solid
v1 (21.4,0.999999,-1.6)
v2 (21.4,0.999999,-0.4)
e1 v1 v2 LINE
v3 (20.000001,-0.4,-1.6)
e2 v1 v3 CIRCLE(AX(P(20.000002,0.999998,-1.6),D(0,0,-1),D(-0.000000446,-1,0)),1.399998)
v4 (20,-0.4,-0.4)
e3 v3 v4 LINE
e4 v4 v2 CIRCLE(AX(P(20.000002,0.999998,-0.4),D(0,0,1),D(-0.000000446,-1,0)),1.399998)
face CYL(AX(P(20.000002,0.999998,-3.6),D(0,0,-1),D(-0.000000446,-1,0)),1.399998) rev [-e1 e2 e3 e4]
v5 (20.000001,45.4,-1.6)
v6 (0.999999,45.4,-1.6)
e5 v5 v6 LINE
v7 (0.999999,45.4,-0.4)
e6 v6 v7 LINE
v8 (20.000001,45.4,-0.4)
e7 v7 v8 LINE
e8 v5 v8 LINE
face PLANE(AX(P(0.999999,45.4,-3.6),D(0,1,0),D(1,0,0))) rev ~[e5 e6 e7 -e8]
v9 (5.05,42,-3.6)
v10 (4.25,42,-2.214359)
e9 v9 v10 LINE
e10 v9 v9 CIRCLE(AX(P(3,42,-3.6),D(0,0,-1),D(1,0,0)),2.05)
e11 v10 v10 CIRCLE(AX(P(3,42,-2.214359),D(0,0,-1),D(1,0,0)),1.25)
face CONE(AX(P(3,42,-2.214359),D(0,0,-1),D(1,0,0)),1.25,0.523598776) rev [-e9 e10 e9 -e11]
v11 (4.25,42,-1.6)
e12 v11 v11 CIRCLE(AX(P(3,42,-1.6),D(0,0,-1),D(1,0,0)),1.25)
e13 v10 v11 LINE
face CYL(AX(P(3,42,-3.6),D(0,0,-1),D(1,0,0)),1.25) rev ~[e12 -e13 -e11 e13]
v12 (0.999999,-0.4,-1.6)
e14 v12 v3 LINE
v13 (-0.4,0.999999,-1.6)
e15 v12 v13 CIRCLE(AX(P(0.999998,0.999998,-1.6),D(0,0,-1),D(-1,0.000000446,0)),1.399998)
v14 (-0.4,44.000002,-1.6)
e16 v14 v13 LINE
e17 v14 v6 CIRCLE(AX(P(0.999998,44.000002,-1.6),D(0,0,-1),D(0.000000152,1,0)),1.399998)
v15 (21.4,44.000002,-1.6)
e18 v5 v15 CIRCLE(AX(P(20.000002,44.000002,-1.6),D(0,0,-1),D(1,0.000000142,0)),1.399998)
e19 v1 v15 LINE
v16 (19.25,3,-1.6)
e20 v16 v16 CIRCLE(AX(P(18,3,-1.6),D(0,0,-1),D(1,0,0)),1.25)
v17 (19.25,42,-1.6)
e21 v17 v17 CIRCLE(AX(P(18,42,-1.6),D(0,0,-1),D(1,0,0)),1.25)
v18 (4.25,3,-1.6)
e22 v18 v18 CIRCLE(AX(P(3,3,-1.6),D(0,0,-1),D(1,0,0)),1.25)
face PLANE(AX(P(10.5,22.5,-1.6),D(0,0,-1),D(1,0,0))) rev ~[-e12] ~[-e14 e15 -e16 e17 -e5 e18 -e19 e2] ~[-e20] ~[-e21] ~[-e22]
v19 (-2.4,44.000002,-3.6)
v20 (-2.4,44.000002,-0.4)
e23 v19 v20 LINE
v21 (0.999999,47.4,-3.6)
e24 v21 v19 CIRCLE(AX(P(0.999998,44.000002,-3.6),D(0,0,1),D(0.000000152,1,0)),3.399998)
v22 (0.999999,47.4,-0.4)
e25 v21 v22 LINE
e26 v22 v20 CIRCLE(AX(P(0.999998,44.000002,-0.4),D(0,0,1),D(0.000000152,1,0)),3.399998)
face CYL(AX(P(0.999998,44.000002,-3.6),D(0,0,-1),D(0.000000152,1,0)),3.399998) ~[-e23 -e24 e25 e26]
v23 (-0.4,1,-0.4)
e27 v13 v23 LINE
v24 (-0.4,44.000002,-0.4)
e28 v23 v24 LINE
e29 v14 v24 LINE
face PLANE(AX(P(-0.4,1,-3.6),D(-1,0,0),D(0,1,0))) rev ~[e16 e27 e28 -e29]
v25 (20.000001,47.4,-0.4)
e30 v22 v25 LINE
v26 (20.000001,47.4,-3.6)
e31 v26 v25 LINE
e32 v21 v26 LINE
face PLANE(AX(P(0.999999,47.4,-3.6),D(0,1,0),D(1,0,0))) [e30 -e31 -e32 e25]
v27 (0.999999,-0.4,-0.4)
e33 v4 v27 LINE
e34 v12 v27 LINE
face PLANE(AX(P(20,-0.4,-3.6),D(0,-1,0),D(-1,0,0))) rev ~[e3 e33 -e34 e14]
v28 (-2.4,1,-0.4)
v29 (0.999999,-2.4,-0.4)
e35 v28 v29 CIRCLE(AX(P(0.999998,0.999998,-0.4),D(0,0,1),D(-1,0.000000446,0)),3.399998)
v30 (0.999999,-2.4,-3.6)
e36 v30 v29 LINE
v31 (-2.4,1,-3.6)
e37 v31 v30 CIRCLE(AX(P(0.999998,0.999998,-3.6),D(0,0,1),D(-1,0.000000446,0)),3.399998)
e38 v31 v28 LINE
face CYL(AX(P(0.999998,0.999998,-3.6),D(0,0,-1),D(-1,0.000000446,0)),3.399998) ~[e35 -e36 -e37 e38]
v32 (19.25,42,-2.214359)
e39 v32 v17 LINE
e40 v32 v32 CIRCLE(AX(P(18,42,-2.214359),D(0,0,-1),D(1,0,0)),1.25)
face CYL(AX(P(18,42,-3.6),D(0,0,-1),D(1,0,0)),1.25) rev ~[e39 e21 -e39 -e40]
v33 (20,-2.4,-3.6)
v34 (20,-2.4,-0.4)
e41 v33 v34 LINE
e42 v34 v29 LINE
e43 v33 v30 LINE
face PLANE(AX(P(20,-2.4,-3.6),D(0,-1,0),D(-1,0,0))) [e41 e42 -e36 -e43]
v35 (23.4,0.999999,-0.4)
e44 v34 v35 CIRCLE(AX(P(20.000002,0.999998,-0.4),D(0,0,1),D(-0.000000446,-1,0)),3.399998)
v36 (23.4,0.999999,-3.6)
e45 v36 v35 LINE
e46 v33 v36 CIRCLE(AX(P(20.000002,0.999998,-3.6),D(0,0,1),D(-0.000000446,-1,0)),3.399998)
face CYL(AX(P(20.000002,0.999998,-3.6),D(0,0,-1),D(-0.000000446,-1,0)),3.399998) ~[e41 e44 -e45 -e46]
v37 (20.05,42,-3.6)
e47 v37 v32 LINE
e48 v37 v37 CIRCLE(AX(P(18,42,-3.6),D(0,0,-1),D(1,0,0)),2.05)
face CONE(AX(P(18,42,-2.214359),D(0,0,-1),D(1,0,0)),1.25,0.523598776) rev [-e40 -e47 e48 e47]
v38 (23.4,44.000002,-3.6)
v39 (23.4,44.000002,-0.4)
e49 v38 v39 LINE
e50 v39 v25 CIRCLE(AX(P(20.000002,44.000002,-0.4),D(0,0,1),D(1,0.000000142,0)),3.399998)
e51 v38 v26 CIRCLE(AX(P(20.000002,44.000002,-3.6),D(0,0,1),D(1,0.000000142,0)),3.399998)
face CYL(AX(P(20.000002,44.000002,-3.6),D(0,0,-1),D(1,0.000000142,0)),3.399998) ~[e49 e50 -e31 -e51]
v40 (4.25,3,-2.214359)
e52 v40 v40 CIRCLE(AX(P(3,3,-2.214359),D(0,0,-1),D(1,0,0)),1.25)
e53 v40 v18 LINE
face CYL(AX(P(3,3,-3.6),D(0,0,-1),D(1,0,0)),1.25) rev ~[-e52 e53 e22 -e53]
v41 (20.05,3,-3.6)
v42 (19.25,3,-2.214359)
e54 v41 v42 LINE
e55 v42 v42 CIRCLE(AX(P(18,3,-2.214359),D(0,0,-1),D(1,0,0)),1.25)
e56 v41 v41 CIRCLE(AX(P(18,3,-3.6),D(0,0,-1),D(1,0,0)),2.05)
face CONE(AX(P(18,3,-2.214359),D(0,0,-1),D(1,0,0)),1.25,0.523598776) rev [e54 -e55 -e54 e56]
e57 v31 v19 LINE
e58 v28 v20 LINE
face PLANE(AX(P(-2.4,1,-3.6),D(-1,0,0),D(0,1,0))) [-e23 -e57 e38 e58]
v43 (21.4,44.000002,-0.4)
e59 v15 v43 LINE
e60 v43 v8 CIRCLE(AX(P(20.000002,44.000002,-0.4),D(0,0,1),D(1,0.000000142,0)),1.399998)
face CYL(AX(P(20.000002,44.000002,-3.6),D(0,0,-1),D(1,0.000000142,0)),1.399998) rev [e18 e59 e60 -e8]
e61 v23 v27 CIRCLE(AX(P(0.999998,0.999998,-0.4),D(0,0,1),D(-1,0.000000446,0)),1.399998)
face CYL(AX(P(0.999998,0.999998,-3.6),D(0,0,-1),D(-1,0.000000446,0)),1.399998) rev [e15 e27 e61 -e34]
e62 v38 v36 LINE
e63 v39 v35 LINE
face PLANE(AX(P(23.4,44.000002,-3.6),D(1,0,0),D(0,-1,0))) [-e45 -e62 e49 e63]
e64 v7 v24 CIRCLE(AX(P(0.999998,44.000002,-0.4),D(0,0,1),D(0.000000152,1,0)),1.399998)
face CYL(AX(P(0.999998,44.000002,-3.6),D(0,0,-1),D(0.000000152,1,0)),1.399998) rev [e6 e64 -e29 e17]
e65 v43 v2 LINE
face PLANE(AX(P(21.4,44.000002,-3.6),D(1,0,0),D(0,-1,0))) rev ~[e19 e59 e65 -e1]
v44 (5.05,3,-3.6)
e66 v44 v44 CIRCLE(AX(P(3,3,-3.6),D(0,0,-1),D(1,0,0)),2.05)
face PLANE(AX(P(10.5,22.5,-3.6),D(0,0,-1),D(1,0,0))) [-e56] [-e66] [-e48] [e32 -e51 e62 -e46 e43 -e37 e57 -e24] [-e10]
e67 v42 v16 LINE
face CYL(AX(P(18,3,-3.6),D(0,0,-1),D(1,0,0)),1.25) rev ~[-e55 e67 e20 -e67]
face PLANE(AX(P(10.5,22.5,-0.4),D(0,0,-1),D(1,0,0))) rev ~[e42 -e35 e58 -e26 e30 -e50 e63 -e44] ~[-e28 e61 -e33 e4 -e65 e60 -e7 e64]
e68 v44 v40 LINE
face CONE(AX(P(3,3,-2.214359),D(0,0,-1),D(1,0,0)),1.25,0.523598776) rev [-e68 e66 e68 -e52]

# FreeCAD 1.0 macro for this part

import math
import FreeCAD as App
import Part
import Sketcher
from FreeCAD import Vector


def edges_at(feature, points):
    """Names of the edges that pass closest to the given points."""
    edges = feature.Shape.Edges
    near = lambda p: min(range(len(edges)), key=lambda i: edges[i].distToShape(Part.Vertex(*p))[0])
    return sorted({f"Edge{near(p) + 1}" for p in points})


def faces_at(feature, points):
    """Names of the faces that lie closest to the given points."""
    faces = feature.Shape.Faces
    near = lambda p: min(range(len(faces)), key=lambda i: faces[i].distToShape(Part.Vertex(*p))[0])
    return sorted({f"Face{near(p) + 1}" for p in points})

doc = App.newDocument("Part")
params = doc.addObject("Spreadsheet::Sheet", "Params")
for row, (alias, value) in enumerate([
    ("sketch1_radius", "3.399998 mm"),
    ("sketch1_width", "19.000001 mm"),
    ("pad1_length", "3.2 mm"),
    ("thickness_wall", "2 mm"),
    ("sketch2_diameter", "2.5 mm"),
    ("chamfer_size", "0.8 mm"),
], start=1):
    params.set(f"A{row}", alias)
    params.set(f"B{row}", "=" + value)
    params.setAlias(f"B{row}", alias)

body = doc.addObject("PartDesign::Body", "Body")

# Sketch on XY plane
sketch1 = body.newObject("Sketcher::SketchObject", "Sketch")
sketch1.AttachmentSupport = (doc.getObject("XY_Plane"), [""])
sketch1.MapMode = "FlatFace"
sketch1.addGeometry([
    Part.LineSegment(Vector(23.4, 0.999999, 0), Vector(23.4, 44.000002, 0)),  # 0
    Part.ArcOfCircle(Part.Circle(Vector(20.000002, 44.000002, 0), Vector(0, 0, 1), 3.399998), math.radians(0.000008), math.radians(90.000009)),  # 1
    Part.LineSegment(Vector(20.000001, 47.4, 0), Vector(0.999999, 47.4, 0)),  # 2
    Part.ArcOfCircle(Part.Circle(Vector(0.999998, 44.000002, 0), Vector(0, 0, 1), 3.399998), math.radians(89.999991), math.radians(179.999992)),  # 3
    Part.LineSegment(Vector(-2.4, 44.000002, 0), Vector(-2.4, 1, 0)),  # 4
    Part.ArcOfCircle(Part.Circle(Vector(0.999998, 0.999998, 0), Vector(0, 0, 1), 3.399998), math.radians(179.999974), math.radians(270.000009)),  # 5
    Part.LineSegment(Vector(0.999999, -2.4, 0), Vector(20, -2.4, 0)),  # 6
    Part.ArcOfCircle(Part.Circle(Vector(20.000002, 0.999998, 0), Vector(0, 0, 1), 3.399998), math.radians(-90.000026), math.radians(0.000009)),  # 7
], False)
sketch1.addConstraint([
    Sketcher.Constraint("Tangent", 0, 2, 1, 1),
    Sketcher.Constraint("Tangent", 1, 2, 2, 1),
    Sketcher.Constraint("Tangent", 2, 2, 3, 1),
    Sketcher.Constraint("Tangent", 3, 2, 4, 1),
    Sketcher.Constraint("Tangent", 4, 2, 5, 1),
    Sketcher.Constraint("Tangent", 5, 2, 6, 1),
    Sketcher.Constraint("Tangent", 6, 2, 7, 1),
    Sketcher.Constraint("Tangent", 7, 2, 0, 1),
    Sketcher.Constraint("Vertical", 0),
    Sketcher.Constraint("Horizontal", 2),
    Sketcher.Constraint("Vertical", 4),
    Sketcher.Constraint("Horizontal", 6),
    Sketcher.Constraint("Equal", 1, 3),
    Sketcher.Constraint("Equal", 3, 5),
    Sketcher.Constraint("Equal", 5, 7),
    Sketcher.Constraint("Radius", 1, 3.399998),
    Sketcher.Constraint("DistanceX", 6, 1, 6, 2, 19.000001),
    Sketcher.Constraint("DistanceX", -1, 1, 1, 3, 20.000002),
    Sketcher.Constraint("DistanceY", -1, 1, 1, 3, 44.000002),
    Sketcher.Constraint("DistanceY", -1, 1, 5, 3, 0.999998),
])
sketch1.setExpression("Constraints[15]", "Params.sketch1_radius")
sketch1.setExpression("Constraints[16]", "Params.sketch1_width")
pad1 = body.newObject("PartDesign::Pad", "Pad")
pad1.Profile = sketch1
pad1.setExpression("Length", "Params.pad1_length")
doc.recompute()

thickness = body.newObject("PartDesign::Thickness", "Thickness")
thickness.Base = (pad1, faces_at(pad1, [(10.5, 22.5, 3.2)]))
thickness.setExpression("Value", "Params.thickness_wall")
thickness.Reversed = True
thickness.Join = "Arc"

# Sketch on XY plane
sketch2 = body.newObject("Sketcher::SketchObject", "Sketch001")
sketch2.AttachmentSupport = (doc.getObject("XY_Plane"), [""])
sketch2.MapMode = "FlatFace"
sketch2.addGeometry([
    Part.Circle(Vector(3, 3, 0), Vector(0, 0, 1), 1.25),
    Part.Circle(Vector(18, 3, 0), Vector(0, 0, 1), 1.25),
    Part.Circle(Vector(18, 42, 0), Vector(0, 0, 1), 1.25),
    Part.Circle(Vector(3, 42, 0), Vector(0, 0, 1), 1.25),
], False)
sketch2.addConstraint([
    Sketcher.Constraint("Equal", 0, 1),
    Sketcher.Constraint("Equal", 1, 2),
    Sketcher.Constraint("Equal", 2, 3),
    Sketcher.Constraint("Horizontal", 0, 3, 1, 3),
    Sketcher.Constraint("Horizontal", 2, 3, 3, 3),
    Sketcher.Constraint("Vertical", 1, 3, 2, 3),
    Sketcher.Constraint("Vertical", 0, 3, 3, 3),
    Sketcher.Constraint("Diameter", 0, 2.5),
    Sketcher.Constraint("DistanceX", -1, 1, 0, 3, 3.0),
    Sketcher.Constraint("DistanceY", -1, 1, 0, 3, 3.0),
    Sketcher.Constraint("DistanceX", -1, 1, 1, 3, 18.0),
    Sketcher.Constraint("DistanceY", -1, 1, 2, 3, 42.0),
])
sketch2.setExpression("Constraints[7]", "Params.sketch2_diameter")
pocket1 = body.newObject("PartDesign::Pocket", "Pocket")
pocket1.Profile = sketch2
pocket1.Type = "ThroughAll"
pocket1.Reversed = True
doc.recompute()

chamfer = body.newObject("PartDesign::Chamfer", "Chamfer")
chamfer.Base = (pocket1, edges_at(pocket1, [
    (1.75, 42, 0),
    (16.75, 42, 0),
    (1.75, 3, 0),
    (16.75, 3, 0),
]))
chamfer.ChamferType = "Distance and Angle"
chamfer.setExpression("Size", "Params.chamfer_size")
chamfer.Angle = 60
body2 = doc.addObject("PartDesign::Body", "Body001")
doc.recompute()

body.Placement = App.Placement(Vector(0, 0, -3.6), App.Rotation(Vector(0, 0, 1), 0))
boolean = body2.newObject("PartDesign::Boolean", "Boolean")
boolean.Type = "Fuse"
boolean.addObjects([body])

doc.recompute()
